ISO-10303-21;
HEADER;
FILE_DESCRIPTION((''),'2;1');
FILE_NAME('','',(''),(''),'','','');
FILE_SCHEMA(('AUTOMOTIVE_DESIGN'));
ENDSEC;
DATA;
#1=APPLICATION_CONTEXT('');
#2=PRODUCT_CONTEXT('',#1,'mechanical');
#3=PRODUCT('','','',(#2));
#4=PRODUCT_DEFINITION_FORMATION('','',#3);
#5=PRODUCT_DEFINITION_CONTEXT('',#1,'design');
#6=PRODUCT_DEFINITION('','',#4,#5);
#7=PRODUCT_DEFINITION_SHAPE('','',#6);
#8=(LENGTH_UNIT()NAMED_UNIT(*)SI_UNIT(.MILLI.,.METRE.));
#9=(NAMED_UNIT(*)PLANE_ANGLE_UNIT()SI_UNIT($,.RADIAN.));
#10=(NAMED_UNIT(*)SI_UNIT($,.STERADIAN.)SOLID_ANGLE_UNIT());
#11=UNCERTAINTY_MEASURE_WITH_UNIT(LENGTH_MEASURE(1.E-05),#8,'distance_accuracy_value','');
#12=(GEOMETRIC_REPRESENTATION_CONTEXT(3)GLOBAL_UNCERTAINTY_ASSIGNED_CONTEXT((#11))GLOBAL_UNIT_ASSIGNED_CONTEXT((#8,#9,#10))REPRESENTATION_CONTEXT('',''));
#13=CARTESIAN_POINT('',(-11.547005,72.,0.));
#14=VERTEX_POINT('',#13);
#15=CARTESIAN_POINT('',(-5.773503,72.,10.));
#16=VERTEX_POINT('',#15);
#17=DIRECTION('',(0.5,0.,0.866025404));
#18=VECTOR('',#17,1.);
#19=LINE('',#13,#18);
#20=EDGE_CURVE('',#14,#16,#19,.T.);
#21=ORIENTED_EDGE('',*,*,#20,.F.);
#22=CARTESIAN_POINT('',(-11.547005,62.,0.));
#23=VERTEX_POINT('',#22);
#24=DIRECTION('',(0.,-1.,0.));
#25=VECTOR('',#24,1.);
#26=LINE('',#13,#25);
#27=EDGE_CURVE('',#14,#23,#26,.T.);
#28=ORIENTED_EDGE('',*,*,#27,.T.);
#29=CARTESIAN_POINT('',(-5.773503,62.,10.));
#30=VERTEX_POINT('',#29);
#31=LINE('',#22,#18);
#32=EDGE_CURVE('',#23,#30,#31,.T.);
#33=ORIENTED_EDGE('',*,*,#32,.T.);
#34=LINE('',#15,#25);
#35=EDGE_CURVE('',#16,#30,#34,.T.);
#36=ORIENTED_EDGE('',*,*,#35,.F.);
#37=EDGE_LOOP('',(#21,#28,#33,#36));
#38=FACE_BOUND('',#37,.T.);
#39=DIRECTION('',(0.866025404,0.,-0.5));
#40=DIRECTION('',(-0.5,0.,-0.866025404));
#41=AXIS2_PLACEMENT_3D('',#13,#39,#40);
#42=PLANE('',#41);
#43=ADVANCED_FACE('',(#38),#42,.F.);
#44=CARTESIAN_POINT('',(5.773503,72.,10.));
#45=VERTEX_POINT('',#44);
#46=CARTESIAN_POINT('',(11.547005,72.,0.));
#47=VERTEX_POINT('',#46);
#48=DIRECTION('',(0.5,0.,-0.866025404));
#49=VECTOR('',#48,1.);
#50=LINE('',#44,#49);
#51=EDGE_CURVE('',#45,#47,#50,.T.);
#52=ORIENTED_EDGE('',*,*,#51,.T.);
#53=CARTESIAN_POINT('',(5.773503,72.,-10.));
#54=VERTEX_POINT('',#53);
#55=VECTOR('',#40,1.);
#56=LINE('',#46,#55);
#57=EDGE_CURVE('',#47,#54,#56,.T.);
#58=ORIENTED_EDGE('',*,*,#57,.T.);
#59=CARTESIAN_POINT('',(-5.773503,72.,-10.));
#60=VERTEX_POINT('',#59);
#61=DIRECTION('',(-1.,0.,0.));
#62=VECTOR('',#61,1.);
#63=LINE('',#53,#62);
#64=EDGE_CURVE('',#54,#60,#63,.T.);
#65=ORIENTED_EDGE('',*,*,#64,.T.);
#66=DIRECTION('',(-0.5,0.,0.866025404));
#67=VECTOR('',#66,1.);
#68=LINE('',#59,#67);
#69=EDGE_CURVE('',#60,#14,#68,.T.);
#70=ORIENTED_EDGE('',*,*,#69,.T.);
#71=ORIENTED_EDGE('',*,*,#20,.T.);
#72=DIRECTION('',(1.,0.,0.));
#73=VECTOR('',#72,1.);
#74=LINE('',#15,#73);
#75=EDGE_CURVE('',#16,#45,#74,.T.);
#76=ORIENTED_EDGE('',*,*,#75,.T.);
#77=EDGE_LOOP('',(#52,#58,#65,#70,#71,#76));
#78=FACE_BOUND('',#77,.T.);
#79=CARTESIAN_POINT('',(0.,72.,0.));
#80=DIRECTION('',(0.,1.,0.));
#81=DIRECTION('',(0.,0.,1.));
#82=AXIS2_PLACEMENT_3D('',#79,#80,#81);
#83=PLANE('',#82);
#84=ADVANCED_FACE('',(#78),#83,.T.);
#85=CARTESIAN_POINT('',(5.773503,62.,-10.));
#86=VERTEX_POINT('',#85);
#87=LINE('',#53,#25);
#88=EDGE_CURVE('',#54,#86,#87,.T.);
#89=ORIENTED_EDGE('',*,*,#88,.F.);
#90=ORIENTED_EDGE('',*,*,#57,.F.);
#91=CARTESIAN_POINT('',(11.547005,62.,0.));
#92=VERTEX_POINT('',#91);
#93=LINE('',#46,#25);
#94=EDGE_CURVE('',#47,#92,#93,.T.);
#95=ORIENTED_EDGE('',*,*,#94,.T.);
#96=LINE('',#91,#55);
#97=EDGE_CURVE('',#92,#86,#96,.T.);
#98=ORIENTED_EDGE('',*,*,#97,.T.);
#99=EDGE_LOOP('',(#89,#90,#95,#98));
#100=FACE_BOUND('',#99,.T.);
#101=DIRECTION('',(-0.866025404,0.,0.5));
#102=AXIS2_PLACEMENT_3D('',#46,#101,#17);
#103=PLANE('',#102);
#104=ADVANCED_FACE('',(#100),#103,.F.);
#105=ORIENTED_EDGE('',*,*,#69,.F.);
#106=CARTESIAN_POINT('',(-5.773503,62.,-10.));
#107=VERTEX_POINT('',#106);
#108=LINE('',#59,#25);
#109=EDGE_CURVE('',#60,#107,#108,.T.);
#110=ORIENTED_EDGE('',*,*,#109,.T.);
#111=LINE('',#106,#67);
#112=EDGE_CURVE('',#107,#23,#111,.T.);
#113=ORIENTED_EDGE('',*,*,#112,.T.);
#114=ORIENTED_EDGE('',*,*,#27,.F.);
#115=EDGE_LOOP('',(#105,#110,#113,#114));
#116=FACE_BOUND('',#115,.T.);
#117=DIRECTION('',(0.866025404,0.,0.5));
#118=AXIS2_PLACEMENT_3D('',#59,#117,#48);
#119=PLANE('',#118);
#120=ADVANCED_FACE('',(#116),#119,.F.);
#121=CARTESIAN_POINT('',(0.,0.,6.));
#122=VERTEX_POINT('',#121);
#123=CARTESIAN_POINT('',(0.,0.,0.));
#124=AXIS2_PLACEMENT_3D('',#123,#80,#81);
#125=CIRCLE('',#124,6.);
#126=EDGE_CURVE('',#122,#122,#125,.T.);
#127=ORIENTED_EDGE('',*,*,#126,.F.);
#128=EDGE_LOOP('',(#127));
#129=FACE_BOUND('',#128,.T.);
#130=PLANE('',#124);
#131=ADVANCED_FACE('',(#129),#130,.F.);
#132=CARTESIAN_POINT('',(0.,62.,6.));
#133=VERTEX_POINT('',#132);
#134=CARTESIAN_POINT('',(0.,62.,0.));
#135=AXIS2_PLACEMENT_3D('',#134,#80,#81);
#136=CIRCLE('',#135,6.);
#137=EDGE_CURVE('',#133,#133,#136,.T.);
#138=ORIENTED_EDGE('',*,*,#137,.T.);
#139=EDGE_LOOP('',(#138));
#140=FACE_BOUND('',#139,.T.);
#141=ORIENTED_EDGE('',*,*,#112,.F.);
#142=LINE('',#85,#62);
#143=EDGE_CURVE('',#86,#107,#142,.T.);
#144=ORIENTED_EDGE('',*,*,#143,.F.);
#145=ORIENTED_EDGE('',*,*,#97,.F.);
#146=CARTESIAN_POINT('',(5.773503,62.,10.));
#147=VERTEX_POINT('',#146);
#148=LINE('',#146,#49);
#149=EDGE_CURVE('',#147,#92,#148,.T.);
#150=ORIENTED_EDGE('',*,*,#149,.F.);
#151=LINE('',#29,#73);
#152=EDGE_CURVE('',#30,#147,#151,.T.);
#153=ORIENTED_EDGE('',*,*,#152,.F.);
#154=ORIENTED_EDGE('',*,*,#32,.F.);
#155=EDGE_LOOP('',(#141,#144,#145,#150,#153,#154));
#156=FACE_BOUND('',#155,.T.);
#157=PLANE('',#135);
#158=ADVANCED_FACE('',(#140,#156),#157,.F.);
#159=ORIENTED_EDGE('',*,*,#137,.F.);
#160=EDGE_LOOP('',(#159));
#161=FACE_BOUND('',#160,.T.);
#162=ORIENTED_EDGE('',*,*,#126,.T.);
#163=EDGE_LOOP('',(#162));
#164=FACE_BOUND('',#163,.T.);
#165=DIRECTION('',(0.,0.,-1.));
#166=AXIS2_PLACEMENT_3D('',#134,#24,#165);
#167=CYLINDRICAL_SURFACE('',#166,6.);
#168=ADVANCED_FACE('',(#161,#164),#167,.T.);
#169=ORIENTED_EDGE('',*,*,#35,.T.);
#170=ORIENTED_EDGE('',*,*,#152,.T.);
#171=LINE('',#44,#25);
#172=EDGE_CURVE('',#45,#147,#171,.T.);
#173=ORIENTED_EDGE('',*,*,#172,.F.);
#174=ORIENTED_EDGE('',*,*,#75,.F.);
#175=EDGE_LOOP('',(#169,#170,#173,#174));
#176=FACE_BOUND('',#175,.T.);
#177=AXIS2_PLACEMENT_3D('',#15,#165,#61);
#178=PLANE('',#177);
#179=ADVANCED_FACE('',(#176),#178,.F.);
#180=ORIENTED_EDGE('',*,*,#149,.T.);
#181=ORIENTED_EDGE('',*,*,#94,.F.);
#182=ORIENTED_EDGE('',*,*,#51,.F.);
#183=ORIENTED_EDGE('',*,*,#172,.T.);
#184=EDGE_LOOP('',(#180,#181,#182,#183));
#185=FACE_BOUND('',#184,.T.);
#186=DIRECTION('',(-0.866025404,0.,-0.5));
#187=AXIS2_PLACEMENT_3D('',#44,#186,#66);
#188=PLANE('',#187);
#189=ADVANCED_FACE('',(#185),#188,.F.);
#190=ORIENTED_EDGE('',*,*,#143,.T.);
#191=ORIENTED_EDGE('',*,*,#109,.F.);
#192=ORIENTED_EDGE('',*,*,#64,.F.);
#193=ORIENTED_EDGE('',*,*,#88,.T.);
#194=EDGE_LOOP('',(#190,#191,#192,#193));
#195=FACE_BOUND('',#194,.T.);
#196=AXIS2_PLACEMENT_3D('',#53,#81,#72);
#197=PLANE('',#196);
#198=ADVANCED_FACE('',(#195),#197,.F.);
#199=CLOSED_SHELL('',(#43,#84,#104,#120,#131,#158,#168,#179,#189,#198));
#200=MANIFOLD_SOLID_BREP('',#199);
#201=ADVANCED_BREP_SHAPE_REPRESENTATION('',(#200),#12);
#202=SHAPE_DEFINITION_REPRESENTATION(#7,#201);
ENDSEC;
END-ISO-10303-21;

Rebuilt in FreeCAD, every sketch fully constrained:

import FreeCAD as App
import Part
import Sketcher

V = App.Vector
Q = App.Units.Quantity


def add_polygon(sketch, points):
    """Adds a closed chain of lines whose ends are joined by coincident constraints."""
    first, n = sketch.GeometryCount, len(points)
    for a, b in zip(points, points[1:] + points[:1]):
        sketch.addGeometry(Part.LineSegment(App.Vector(*a, 0), App.Vector(*b, 0)), False)
    for i in range(n):
        sketch.addConstraint(Sketcher.Constraint("Coincident", first + i, 2, first + (i + 1) % n, 1))

doc = App.newDocument("Part")
body = doc.addObject("PartDesign::Body", "Body")

# Sketch on XZ plane
sketch1 = doc.addObject("Sketcher::SketchObject", "Sketch")
body.addObject(sketch1)
sketch1.AttachmentSupport = (doc.XZ_Plane, [""])
sketch1.MapMode = "FlatFace"
sketch1.addGeometry(Part.Circle(V(0, 0, 0), V(0, 0, 1), 6), False)
sketch1.addConstraint([
    Sketcher.Constraint("Coincident", 0, 3, -1, 1),
    Sketcher.Constraint("Diameter", 0, 12.0),
])
pad1 = doc.addObject("PartDesign::Pad", "Pad")
body.addObject(pad1)
pad1.Profile = sketch1
pad1.Length = 62
pad1.Reversed = True

# Sketch on XZ plane
sketch2 = doc.addObject("Sketcher::SketchObject", "Sketch001")
body.addObject(sketch2)
sketch2.AttachmentSupport = (doc.XZ_Plane, [""])
sketch2.MapMode = "FlatFace"
sketch2.AttachmentOffset = App.Placement(V(0, 0, -62), App.Rotation())
add_polygon(sketch2, [(12, 0), (6, -10), (-6, -10), (-12, 0), (-6, 10), (6, 10)])  # lines 0-5
sketch2.addConstraint([
    Sketcher.Constraint("Horizontal", 1),
    Sketcher.Constraint("Horizontal", 4),
    Sketcher.Constraint("Symmetric", 0, 2, 3, 2, -1, 1),
    Sketcher.Constraint("Symmetric", 2, 2, 5, 2, -1, 1),
    Sketcher.Constraint("PointOnObject", 2, 2, -1),
    Sketcher.Constraint("Parallel", 2, 5),
    Sketcher.Constraint("Vertical", 1, 2, 3, 2),
    Sketcher.Constraint("Angle", 0, Q("-120 deg")),
    Sketcher.Constraint("DistanceY", 0, 2, -1, 1, 10.0),
    Sketcher.Constraint("DistanceX", 1, 2, 1, 1, 11.547005),
])
pad2 = doc.addObject("PartDesign::Pad", "Pad001")
body.addObject(pad2)
pad2.Profile = sketch2
pad2.Length = 10
pad2.Reversed = True

doc.recompute()
